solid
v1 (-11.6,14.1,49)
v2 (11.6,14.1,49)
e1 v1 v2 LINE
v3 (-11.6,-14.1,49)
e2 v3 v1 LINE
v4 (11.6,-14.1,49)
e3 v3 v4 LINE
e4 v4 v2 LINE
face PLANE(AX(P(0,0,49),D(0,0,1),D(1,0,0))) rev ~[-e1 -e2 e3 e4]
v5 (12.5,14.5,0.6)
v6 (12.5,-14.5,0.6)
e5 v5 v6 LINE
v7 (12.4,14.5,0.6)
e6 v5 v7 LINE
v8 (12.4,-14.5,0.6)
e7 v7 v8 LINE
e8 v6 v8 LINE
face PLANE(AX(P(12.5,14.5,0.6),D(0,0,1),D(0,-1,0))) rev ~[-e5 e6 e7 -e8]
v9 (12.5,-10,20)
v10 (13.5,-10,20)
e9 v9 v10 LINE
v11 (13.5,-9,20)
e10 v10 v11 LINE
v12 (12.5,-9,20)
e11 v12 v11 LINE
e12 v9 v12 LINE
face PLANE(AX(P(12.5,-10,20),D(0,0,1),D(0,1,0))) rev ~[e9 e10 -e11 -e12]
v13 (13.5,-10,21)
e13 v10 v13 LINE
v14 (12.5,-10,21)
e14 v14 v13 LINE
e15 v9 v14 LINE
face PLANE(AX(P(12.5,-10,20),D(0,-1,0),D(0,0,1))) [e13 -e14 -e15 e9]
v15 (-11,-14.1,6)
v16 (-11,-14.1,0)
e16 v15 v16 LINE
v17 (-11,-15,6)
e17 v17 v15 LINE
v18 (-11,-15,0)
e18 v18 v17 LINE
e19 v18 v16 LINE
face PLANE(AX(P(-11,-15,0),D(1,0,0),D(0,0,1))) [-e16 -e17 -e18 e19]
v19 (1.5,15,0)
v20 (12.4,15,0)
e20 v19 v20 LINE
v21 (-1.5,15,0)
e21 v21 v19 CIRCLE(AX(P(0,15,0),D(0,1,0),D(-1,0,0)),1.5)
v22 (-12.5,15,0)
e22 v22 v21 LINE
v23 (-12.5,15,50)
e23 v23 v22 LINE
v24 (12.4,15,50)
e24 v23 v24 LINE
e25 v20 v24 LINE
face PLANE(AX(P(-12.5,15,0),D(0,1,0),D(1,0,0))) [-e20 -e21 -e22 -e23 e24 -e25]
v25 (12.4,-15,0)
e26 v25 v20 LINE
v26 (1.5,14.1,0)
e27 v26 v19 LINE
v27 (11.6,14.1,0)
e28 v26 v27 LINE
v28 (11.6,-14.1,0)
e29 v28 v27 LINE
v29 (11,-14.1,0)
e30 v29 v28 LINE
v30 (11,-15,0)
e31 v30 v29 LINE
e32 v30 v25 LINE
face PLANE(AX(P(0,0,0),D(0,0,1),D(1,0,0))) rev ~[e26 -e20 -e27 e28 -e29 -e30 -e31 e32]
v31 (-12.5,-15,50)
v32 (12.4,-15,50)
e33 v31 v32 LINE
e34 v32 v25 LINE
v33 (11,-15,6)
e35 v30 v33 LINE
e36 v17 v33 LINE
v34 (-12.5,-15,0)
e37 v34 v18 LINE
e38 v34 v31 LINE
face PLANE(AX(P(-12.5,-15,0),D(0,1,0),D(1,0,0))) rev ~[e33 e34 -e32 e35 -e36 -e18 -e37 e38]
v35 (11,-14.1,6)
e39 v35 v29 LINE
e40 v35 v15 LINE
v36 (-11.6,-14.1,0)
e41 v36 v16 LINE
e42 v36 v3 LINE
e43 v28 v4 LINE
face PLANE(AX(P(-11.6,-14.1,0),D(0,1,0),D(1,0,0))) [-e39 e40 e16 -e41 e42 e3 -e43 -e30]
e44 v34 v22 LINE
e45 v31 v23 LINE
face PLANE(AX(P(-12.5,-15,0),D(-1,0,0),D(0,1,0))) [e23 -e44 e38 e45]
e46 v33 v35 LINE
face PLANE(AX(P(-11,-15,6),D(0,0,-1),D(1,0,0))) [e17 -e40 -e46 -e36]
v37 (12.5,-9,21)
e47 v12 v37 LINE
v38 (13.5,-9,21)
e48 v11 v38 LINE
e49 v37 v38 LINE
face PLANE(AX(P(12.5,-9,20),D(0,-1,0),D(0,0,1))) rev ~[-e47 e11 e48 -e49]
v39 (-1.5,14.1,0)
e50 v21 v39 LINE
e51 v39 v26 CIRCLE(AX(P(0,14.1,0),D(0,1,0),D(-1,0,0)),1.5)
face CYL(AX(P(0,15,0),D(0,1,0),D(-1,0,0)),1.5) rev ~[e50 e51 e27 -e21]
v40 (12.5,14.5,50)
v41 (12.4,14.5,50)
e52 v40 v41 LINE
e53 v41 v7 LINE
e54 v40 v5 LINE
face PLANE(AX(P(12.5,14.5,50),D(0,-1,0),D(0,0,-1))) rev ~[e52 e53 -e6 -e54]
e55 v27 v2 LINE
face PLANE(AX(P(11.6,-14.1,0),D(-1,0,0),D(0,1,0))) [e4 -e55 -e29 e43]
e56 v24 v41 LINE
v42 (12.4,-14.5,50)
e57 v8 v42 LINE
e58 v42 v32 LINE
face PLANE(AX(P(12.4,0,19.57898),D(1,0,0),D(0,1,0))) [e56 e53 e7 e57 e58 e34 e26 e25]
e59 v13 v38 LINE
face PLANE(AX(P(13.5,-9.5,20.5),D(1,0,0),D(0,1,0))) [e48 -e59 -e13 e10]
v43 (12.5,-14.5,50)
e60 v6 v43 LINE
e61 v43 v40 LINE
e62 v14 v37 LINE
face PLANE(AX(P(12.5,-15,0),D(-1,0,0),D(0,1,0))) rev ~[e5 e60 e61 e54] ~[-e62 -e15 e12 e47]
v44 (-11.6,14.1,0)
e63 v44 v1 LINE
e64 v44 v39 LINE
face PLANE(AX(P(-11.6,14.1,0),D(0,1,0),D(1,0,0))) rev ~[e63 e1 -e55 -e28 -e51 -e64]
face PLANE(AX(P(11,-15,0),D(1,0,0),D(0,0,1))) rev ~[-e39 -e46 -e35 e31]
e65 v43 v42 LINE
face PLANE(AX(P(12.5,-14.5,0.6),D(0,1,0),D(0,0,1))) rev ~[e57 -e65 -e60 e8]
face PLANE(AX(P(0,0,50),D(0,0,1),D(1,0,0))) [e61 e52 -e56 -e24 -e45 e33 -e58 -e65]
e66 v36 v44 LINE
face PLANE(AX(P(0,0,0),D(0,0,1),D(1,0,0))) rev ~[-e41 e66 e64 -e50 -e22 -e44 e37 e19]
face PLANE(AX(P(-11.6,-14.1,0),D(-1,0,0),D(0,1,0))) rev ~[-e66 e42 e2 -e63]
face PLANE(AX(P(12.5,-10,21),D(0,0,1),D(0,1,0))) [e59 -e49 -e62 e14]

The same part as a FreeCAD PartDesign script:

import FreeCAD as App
import Part
import Sketcher
from FreeCAD import Vector


def add_polygon(sketch, points):
    """Adds a closed chain of lines whose ends are joined by coincident constraints."""
    first, n = sketch.GeometryCount, len(points)
    for a, b in zip(points, points[1:] + points[:1]):
        sketch.addGeometry(Part.LineSegment(App.Vector(*a, 0), App.Vector(*b, 0)), False)
    for i in range(n):
        sketch.addConstraint(Sketcher.Constraint("Coincident", first + i, 2, first + (i + 1) % n, 1))

doc = App.newDocument("Part")
body = doc.addObject("PartDesign::Body", "Body")

sketch1 = body.newObject("Sketcher::SketchObject", "Sketch")
sketch1.AttachmentSupport = (doc.getObject("XY_Plane"), [""])
sketch1.MapMode = "FlatFace"
add_polygon(sketch1, [(-12, 15), (-12, -15), (12, -15), (12, 15)])
add_polygon(sketch1, [(12, -14), (-12, -14), (-12, 14), (12, 14)])
sketch1.addConstraint([
    Sketcher.Constraint("Vertical", 0),
    Sketcher.Constraint("Horizontal", 1),
    Sketcher.Constraint("Vertical", 2),
    Sketcher.Constraint("Horizontal", 3),
    Sketcher.Constraint("Horizontal", 4),
    Sketcher.Constraint("Vertical", 5),
    Sketcher.Constraint("Horizontal", 6),
    Sketcher.Constraint("Vertical", 7),
    Sketcher.Constraint("Symmetric", 0, 2, 2, 2, -1, 1),
    Sketcher.Constraint("Symmetric", 4, 2, 6, 2, -1, 1),
    Sketcher.Constraint("DistanceX", 1, 1, 1, 2, 25.0),
    Sketcher.Constraint("DistanceY", 0, 2, 0, 1, 30.0),
    Sketcher.Constraint("DistanceX", 4, 2, 4, 1, 23.2),
    Sketcher.Constraint("DistanceY", 5, 1, 5, 2, 28.2),
])
pad1 = body.newObject("PartDesign::Pad", "Pad")
pad1.Profile = sketch1
pad1.Length = 50

sketch2 = body.newObject("Sketcher::SketchObject", "Sketch001")
sketch2.AttachmentSupport = (doc.getObject("XY_Plane"), [""])
sketch2.MapMode = "FlatFace"
sketch2.AttachmentOffset = App.Placement(Vector(0, 0, 50), App.Rotation())
add_polygon(sketch2, [(-12, 15), (-12, -15), (12, -15), (12, 15)])
sketch2.addConstraint([
    Sketcher.Constraint("Vertical", 0),
    Sketcher.Constraint("Horizontal", 1),
    Sketcher.Constraint("Vertical", 2),
    Sketcher.Constraint("Horizontal", 3),
    Sketcher.Constraint("Symmetric", 0, 2, 2, 2, -1, 1),
    Sketcher.Constraint("DistanceX", 1, 1, 1, 2, 25.0),
    Sketcher.Constraint("DistanceY", 0, 2, 0, 1, 30.0),
])
pad2 = body.newObject("PartDesign::Pad", "Pad001")
pad2.Profile = sketch2
pad2.Length = 1
pad2.Reversed = True

sketch3 = body.newObject("Sketcher::SketchObject", "Sketch002")
sketch3.AttachmentSupport = (doc.getObject("YZ_Plane"), [""])
sketch3.MapMode = "FlatFace"
sketch3.AttachmentOffset = App.Placement(Vector(0, 0, 12.5), App.Rotation())
add_polygon(sketch3, [(-10, 21), (-10, 20), (-9, 20), (-9, 21)])
sketch3.addConstraint([
    Sketcher.Constraint("Vertical", 0),
    Sketcher.Constraint("Horizontal", 1),
    Sketcher.Constraint("Vertical", 2),
    Sketcher.Constraint("Horizontal", 3),
    Sketcher.Constraint("Equal", 3, 0),
    Sketcher.Constraint("DistanceX", 1, 1, 1, 2, 1.0),
    Sketcher.Constraint("DistanceX", 0, 2, -1, 1, 10.0),
    Sketcher.Constraint("DistanceY", -1, 1, 0, 2, 20.0),
])
pad3 = body.newObject("PartDesign::Pad", "Pad002")
pad3.Profile = sketch3
pad3.Length = 1

sketch4 = body.newObject("Sketcher::SketchObject", "Sketch003")
sketch4.AttachmentSupport = (doc.getObject("XZ_Plane"), [""])
sketch4.MapMode = "FlatFace"
sketch4.AttachmentOffset = App.Placement(Vector(0, 0, 15), App.Rotation())
add_polygon(sketch4, [(-11, 6), (-11, 0), (11, 0), (11, 6)])
sketch4.addConstraint([
    Sketcher.Constraint("Vertical", 0),
    Sketcher.Constraint("Horizontal", 1),
    Sketcher.Constraint("Vertical", 2),
    Sketcher.Constraint("Horizontal", 3),
    Sketcher.Constraint("Symmetric", 0, 2, 1, 2, -1, 1),
    Sketcher.Constraint("DistanceX", 1, 1, 1, 2, 22.0),
    Sketcher.Constraint("DistanceY", 0, 2, 0, 1, 6.0),
])
pocket1 = body.newObject("PartDesign::Pocket", "Pocket")
pocket1.Profile = sketch4
pocket1.Length = 10

sketch5 = body.newObject("Sketcher::SketchObject", "Sketch004")
sketch5.AttachmentSupport = (doc.getObject("XZ_Plane"), [""])
sketch5.MapMode = "FlatFace"
sketch5.AttachmentOffset = App.Placement(Vector(0, 0, -15), App.Rotation())
sketch5.addGeometry(Part.Circle(Vector(0, 0, 0), Vector(0, 0, 1), 1.5), False)
sketch5.addConstraint([
    Sketcher.Constraint("Coincident", 0, 3, -1, 1),
    Sketcher.Constraint("Diameter", 0, 3.0),
])
pocket2 = body.newObject("PartDesign::Pocket", "Pocket001")
pocket2.Profile = sketch5
pocket2.Length = 5
pocket2.Reversed = True

sketch6 = body.newObject("Sketcher::SketchObject", "Sketch005")
sketch6.AttachmentSupport = (doc.getObject("YZ_Plane"), [""])
sketch6.MapMode = "FlatFace"
sketch6.AttachmentOffset = App.Placement(Vector(0, 0, 12.5), App.Rotation())
add_polygon(sketch6, [(14.5, 0.6), (-14.5, 0.6), (-14.5, 50), (-15, 50), (-15, 0), (15, 0), (15, 50), (14.5, 50)])
sketch6.addConstraint([
    Sketcher.Constraint("Horizontal", 0),
    Sketcher.Constraint("Vertical", 1),
    Sketcher.Constraint("Horizontal", 2),
    Sketcher.Constraint("Vertical", 3),
    Sketcher.Constraint("Horizontal", 4),
    Sketcher.Constraint("Vertical", 5),
    Sketcher.Constraint("Horizontal", 6),
    Sketcher.Constraint("Vertical", 7),
    Sketcher.Constraint("Symmetric", 3, 2, 4, 2, -1, 1),
    Sketcher.Constraint("Symmetric", 1, 2, 6, 2, -2),
    Sketcher.Constraint("DistanceX", 0, 2, 0, 1, 29.0),
    Sketcher.Constraint("DistanceX", 4, 1, 4, 2, 30.0),
    Sketcher.Constraint("DistanceY", 3, 2, 3, 1, 50.0),
    Sketcher.Constraint("DistanceY", 1, 1, 1, 2, 49.4),
])
pocket3 = body.newObject("PartDesign::Pocket", "Pocket002")
pocket3.Profile = sketch6
pocket3.Length = 0.1

doc.recompute()
